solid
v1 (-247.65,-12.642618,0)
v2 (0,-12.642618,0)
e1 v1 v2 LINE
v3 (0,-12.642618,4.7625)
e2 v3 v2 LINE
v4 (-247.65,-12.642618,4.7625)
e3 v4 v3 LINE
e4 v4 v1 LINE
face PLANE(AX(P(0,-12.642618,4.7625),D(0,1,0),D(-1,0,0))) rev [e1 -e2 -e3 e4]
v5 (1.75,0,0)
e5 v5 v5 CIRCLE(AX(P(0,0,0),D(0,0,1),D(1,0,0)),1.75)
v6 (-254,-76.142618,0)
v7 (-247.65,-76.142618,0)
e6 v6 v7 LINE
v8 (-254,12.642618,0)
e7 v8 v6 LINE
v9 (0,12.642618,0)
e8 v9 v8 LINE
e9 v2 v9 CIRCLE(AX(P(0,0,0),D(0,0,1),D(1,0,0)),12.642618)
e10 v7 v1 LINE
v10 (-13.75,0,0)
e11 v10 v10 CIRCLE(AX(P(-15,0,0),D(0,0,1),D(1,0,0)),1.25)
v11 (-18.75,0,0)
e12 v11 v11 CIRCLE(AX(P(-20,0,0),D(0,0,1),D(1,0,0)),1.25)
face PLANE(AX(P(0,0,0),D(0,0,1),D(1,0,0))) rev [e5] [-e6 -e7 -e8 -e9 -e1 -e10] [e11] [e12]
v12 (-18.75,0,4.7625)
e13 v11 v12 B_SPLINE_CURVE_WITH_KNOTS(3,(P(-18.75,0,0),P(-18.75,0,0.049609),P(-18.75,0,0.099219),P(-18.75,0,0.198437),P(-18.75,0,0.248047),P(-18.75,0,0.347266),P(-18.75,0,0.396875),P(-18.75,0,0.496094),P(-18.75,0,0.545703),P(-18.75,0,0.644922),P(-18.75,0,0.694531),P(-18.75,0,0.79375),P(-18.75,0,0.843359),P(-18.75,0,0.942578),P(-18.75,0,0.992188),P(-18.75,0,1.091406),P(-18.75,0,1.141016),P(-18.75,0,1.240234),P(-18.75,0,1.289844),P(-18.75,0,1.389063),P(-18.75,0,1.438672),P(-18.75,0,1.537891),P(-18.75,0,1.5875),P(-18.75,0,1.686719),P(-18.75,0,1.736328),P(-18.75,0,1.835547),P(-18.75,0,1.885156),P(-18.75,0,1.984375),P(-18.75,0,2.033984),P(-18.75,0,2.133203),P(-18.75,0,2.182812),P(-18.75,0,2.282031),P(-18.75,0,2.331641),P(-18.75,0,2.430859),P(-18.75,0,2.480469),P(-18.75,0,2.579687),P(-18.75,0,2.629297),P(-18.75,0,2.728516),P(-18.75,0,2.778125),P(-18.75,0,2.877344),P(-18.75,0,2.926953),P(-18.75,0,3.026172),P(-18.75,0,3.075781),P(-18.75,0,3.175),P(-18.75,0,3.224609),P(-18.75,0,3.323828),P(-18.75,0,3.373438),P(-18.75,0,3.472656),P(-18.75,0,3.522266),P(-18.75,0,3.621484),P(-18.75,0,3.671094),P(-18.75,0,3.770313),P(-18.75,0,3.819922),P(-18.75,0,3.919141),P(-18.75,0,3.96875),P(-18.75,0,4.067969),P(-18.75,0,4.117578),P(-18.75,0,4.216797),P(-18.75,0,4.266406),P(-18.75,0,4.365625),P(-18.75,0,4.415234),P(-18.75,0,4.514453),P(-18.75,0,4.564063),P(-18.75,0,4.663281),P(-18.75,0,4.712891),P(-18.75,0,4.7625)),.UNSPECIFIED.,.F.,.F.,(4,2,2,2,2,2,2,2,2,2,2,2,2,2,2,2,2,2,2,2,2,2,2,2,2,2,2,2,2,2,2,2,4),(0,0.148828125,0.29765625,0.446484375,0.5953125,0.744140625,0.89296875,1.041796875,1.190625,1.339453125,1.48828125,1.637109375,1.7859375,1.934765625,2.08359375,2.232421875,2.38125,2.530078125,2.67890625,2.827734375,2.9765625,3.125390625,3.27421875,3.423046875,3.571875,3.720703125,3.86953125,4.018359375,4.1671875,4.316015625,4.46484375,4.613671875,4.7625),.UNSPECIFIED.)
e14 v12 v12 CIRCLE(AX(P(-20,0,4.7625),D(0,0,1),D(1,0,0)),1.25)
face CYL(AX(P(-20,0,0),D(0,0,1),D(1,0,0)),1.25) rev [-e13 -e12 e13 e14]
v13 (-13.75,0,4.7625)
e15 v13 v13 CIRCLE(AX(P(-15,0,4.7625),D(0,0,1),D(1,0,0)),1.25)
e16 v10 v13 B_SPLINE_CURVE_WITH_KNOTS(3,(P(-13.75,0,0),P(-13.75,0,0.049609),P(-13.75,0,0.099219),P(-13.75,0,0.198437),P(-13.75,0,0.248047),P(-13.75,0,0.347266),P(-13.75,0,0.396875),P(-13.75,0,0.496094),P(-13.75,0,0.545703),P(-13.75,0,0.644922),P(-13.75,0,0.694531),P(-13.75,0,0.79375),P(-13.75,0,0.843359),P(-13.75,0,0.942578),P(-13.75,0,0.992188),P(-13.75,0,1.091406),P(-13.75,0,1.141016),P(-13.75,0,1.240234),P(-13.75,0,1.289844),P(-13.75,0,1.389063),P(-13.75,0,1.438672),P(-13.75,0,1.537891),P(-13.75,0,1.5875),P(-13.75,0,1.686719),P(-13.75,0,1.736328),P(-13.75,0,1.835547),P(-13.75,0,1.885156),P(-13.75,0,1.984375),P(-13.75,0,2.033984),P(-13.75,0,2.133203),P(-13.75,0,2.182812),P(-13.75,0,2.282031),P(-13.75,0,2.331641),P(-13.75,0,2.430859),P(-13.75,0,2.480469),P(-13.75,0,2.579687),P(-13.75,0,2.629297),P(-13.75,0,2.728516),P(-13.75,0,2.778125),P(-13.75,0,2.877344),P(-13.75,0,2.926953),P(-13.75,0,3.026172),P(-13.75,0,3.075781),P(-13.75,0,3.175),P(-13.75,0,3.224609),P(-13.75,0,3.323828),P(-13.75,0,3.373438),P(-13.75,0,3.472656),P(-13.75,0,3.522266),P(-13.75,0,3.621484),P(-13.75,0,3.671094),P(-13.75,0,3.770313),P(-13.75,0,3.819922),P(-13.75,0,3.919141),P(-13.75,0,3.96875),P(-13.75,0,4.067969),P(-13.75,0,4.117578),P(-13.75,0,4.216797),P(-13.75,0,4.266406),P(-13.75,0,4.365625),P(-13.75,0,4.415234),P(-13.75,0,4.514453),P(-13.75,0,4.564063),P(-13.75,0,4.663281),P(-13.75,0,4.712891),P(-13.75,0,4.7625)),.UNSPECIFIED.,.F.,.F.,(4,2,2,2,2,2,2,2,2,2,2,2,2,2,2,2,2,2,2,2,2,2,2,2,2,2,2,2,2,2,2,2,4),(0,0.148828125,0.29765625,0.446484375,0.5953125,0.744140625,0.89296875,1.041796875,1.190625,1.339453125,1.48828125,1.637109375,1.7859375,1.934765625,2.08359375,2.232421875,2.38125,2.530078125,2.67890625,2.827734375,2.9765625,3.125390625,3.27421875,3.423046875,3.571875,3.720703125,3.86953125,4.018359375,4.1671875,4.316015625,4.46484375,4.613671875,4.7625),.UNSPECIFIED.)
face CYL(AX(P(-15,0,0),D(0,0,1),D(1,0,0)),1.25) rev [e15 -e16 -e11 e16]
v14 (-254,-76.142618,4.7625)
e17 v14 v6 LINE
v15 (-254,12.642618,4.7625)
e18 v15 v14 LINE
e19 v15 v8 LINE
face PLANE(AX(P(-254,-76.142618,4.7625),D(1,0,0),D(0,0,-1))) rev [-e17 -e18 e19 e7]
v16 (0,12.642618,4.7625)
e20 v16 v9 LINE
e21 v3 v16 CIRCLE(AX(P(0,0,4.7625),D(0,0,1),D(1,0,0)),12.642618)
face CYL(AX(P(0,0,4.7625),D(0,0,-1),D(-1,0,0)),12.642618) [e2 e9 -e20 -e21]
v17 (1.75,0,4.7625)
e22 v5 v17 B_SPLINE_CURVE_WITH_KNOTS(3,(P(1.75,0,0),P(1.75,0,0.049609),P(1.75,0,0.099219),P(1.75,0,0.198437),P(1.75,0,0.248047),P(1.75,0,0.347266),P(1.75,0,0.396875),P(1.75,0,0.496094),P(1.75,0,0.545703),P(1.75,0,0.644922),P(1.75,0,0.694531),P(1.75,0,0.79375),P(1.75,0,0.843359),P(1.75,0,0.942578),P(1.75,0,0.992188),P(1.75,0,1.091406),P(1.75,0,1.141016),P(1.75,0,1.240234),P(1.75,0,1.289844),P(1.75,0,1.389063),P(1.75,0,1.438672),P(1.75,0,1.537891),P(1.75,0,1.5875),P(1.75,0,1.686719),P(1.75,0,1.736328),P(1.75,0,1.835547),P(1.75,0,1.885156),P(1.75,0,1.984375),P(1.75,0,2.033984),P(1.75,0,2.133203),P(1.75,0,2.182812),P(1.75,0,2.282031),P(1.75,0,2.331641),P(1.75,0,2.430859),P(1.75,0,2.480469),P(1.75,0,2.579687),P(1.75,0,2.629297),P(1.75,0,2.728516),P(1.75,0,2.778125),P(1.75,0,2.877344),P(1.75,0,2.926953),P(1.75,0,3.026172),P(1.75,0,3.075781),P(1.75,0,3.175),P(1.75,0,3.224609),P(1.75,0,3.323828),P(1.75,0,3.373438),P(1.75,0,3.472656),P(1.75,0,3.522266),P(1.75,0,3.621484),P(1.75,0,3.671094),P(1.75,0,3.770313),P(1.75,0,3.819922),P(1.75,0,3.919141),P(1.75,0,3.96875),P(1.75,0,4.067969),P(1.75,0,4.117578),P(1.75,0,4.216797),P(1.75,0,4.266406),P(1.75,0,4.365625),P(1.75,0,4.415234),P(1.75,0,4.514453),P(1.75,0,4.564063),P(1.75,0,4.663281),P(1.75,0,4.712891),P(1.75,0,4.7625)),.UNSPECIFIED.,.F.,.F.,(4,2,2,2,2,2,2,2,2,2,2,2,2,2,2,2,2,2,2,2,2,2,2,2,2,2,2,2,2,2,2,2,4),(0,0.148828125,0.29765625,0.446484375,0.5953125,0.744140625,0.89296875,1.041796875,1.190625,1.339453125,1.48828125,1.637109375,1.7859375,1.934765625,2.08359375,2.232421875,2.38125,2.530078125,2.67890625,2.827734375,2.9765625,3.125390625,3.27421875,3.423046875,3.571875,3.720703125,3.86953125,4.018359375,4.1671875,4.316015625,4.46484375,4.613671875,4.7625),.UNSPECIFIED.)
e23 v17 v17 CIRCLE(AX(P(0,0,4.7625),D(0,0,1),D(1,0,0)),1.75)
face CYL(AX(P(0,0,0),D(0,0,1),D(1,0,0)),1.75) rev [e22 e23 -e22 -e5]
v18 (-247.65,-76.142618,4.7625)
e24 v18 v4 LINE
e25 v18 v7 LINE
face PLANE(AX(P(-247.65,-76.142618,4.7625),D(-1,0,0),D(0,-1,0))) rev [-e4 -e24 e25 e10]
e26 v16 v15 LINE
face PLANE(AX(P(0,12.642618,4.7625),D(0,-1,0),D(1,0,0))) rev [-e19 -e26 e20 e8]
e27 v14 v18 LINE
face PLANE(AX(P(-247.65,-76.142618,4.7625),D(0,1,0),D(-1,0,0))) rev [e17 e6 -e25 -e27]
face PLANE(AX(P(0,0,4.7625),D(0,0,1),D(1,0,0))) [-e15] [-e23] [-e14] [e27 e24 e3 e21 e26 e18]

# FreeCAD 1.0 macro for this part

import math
import FreeCAD as App
import Part
import Sketcher
Q = App.Units.Quantity

doc = App.newDocument("Part")
body = doc.addObject("PartDesign::Body", "Body")

# Sketch on XY plane
sketch1 = body.newObject("Sketcher::SketchObject", "Sketch")
sketch1.AttachmentSupport = (doc.getObject("XY_Plane"), [""])
sketch1.MapMode = "FlatFace"
sketch1.addGeometry([
    Part.LineSegment(App.Vector(0, 13, 0), App.Vector(-254, 13, 0)),  # 0
    Part.LineSegment(App.Vector(-254, 13, 0), App.Vector(-254, -76, 0)),  # 1
    Part.LineSegment(App.Vector(-254, -76, 0), App.Vector(-248, -76, 0)),  # 2
    Part.LineSegment(App.Vector(-248, -76, 0), App.Vector(-248, -13, 0)),  # 3
    Part.LineSegment(App.Vector(-248, -13, 0), App.Vector(0, -13, 0)),  # 4
    Part.ArcOfCircle(Part.Circle(App.Vector(0, 0, 0), App.Vector(0, 0, 1), 13), math.radians(-90), math.radians(90)),  # 5
], False)
sketch1.addConstraint([
    Sketcher.Constraint("Coincident", 0, 2, 1, 1),
    Sketcher.Constraint("Coincident", 1, 2, 2, 1),
    Sketcher.Constraint("Coincident", 2, 2, 3, 1),
    Sketcher.Constraint("Coincident", 3, 2, 4, 1),
    Sketcher.Constraint("Tangent", 4, 2, 5, 1),
    Sketcher.Constraint("Tangent", 5, 2, 0, 1),
    Sketcher.Constraint("Horizontal", 0),
    Sketcher.Constraint("Vertical", 1),
    Sketcher.Constraint("Horizontal", 2),
    Sketcher.Constraint("Vertical", 3),
    Sketcher.Constraint("Horizontal", 4),
    Sketcher.Constraint("Coincident", 5, 3, -1, 1),
    Sketcher.Constraint("DistanceX", 0, 2, 0, 1, Q("10 in")),
    Sketcher.Constraint("DistanceY", 3, 1, 3, 2, Q("2.5 in")),
    Sketcher.Constraint("DistanceX", 2, 1, 2, 2, Q("0.25 in")),
    Sketcher.Constraint("Radius", 5, 12.642618),
])
pad1 = body.newObject("PartDesign::Pad", "Pad")
pad1.Profile = sketch1
pad1.Length = Q("0.1875 in")

# Sketch on XY plane
sketch2 = body.newObject("Sketcher::SketchObject", "Sketch001")
sketch2.AttachmentSupport = (doc.getObject("XY_Plane"), [""])
sketch2.MapMode = "FlatFace"
sketch2.AttachmentOffset = App.Placement(App.Vector(0, 0, 0.1875 * 25.4), App.Rotation())
sketch2.addGeometry([
    Part.Circle(App.Vector(-15, 0, 0), App.Vector(0, 0, 1), 1.2),
    Part.Circle(App.Vector(-20, 0, 0), App.Vector(0, 0, 1), 1.2),
], False)
sketch2.addConstraint([
    Sketcher.Constraint("Equal", 0, 1),
    Sketcher.Constraint("PointOnObject", 0, 3, -1),
    Sketcher.Constraint("PointOnObject", 1, 3, -1),
    Sketcher.Constraint("Diameter", 0, 2.5),
    Sketcher.Constraint("DistanceX", 0, 3, -1, 1, 15.0),
    Sketcher.Constraint("DistanceX", 1, 3, -1, 1, 20.0),
])
pocket1 = body.newObject("PartDesign::Pocket", "Pocket")
pocket1.Profile = sketch2
pocket1.Type = "ThroughAll"

# Sketch on XY plane
sketch3 = body.newObject("Sketcher::SketchObject", "Sketch002")
sketch3.AttachmentSupport = (doc.getObject("XY_Plane"), [""])
sketch3.MapMode = "FlatFace"
sketch3.AttachmentOffset = App.Placement(App.Vector(0, 0, 0.1875 * 25.4), App.Rotation())
sketch3.addGeometry(Part.Circle(App.Vector(0, 0, 0), App.Vector(0, 0, 1), 1.8), False)
sketch3.addConstraint([
    Sketcher.Constraint("Coincident", 0, 3, -1, 1),
    Sketcher.Constraint("Diameter", 0, 3.5),
])
pocket2 = body.newObject("PartDesign::Pocket", "Pocket001")
pocket2.Profile = sketch3
pocket2.Type = "ThroughAll"

doc.recompute()
